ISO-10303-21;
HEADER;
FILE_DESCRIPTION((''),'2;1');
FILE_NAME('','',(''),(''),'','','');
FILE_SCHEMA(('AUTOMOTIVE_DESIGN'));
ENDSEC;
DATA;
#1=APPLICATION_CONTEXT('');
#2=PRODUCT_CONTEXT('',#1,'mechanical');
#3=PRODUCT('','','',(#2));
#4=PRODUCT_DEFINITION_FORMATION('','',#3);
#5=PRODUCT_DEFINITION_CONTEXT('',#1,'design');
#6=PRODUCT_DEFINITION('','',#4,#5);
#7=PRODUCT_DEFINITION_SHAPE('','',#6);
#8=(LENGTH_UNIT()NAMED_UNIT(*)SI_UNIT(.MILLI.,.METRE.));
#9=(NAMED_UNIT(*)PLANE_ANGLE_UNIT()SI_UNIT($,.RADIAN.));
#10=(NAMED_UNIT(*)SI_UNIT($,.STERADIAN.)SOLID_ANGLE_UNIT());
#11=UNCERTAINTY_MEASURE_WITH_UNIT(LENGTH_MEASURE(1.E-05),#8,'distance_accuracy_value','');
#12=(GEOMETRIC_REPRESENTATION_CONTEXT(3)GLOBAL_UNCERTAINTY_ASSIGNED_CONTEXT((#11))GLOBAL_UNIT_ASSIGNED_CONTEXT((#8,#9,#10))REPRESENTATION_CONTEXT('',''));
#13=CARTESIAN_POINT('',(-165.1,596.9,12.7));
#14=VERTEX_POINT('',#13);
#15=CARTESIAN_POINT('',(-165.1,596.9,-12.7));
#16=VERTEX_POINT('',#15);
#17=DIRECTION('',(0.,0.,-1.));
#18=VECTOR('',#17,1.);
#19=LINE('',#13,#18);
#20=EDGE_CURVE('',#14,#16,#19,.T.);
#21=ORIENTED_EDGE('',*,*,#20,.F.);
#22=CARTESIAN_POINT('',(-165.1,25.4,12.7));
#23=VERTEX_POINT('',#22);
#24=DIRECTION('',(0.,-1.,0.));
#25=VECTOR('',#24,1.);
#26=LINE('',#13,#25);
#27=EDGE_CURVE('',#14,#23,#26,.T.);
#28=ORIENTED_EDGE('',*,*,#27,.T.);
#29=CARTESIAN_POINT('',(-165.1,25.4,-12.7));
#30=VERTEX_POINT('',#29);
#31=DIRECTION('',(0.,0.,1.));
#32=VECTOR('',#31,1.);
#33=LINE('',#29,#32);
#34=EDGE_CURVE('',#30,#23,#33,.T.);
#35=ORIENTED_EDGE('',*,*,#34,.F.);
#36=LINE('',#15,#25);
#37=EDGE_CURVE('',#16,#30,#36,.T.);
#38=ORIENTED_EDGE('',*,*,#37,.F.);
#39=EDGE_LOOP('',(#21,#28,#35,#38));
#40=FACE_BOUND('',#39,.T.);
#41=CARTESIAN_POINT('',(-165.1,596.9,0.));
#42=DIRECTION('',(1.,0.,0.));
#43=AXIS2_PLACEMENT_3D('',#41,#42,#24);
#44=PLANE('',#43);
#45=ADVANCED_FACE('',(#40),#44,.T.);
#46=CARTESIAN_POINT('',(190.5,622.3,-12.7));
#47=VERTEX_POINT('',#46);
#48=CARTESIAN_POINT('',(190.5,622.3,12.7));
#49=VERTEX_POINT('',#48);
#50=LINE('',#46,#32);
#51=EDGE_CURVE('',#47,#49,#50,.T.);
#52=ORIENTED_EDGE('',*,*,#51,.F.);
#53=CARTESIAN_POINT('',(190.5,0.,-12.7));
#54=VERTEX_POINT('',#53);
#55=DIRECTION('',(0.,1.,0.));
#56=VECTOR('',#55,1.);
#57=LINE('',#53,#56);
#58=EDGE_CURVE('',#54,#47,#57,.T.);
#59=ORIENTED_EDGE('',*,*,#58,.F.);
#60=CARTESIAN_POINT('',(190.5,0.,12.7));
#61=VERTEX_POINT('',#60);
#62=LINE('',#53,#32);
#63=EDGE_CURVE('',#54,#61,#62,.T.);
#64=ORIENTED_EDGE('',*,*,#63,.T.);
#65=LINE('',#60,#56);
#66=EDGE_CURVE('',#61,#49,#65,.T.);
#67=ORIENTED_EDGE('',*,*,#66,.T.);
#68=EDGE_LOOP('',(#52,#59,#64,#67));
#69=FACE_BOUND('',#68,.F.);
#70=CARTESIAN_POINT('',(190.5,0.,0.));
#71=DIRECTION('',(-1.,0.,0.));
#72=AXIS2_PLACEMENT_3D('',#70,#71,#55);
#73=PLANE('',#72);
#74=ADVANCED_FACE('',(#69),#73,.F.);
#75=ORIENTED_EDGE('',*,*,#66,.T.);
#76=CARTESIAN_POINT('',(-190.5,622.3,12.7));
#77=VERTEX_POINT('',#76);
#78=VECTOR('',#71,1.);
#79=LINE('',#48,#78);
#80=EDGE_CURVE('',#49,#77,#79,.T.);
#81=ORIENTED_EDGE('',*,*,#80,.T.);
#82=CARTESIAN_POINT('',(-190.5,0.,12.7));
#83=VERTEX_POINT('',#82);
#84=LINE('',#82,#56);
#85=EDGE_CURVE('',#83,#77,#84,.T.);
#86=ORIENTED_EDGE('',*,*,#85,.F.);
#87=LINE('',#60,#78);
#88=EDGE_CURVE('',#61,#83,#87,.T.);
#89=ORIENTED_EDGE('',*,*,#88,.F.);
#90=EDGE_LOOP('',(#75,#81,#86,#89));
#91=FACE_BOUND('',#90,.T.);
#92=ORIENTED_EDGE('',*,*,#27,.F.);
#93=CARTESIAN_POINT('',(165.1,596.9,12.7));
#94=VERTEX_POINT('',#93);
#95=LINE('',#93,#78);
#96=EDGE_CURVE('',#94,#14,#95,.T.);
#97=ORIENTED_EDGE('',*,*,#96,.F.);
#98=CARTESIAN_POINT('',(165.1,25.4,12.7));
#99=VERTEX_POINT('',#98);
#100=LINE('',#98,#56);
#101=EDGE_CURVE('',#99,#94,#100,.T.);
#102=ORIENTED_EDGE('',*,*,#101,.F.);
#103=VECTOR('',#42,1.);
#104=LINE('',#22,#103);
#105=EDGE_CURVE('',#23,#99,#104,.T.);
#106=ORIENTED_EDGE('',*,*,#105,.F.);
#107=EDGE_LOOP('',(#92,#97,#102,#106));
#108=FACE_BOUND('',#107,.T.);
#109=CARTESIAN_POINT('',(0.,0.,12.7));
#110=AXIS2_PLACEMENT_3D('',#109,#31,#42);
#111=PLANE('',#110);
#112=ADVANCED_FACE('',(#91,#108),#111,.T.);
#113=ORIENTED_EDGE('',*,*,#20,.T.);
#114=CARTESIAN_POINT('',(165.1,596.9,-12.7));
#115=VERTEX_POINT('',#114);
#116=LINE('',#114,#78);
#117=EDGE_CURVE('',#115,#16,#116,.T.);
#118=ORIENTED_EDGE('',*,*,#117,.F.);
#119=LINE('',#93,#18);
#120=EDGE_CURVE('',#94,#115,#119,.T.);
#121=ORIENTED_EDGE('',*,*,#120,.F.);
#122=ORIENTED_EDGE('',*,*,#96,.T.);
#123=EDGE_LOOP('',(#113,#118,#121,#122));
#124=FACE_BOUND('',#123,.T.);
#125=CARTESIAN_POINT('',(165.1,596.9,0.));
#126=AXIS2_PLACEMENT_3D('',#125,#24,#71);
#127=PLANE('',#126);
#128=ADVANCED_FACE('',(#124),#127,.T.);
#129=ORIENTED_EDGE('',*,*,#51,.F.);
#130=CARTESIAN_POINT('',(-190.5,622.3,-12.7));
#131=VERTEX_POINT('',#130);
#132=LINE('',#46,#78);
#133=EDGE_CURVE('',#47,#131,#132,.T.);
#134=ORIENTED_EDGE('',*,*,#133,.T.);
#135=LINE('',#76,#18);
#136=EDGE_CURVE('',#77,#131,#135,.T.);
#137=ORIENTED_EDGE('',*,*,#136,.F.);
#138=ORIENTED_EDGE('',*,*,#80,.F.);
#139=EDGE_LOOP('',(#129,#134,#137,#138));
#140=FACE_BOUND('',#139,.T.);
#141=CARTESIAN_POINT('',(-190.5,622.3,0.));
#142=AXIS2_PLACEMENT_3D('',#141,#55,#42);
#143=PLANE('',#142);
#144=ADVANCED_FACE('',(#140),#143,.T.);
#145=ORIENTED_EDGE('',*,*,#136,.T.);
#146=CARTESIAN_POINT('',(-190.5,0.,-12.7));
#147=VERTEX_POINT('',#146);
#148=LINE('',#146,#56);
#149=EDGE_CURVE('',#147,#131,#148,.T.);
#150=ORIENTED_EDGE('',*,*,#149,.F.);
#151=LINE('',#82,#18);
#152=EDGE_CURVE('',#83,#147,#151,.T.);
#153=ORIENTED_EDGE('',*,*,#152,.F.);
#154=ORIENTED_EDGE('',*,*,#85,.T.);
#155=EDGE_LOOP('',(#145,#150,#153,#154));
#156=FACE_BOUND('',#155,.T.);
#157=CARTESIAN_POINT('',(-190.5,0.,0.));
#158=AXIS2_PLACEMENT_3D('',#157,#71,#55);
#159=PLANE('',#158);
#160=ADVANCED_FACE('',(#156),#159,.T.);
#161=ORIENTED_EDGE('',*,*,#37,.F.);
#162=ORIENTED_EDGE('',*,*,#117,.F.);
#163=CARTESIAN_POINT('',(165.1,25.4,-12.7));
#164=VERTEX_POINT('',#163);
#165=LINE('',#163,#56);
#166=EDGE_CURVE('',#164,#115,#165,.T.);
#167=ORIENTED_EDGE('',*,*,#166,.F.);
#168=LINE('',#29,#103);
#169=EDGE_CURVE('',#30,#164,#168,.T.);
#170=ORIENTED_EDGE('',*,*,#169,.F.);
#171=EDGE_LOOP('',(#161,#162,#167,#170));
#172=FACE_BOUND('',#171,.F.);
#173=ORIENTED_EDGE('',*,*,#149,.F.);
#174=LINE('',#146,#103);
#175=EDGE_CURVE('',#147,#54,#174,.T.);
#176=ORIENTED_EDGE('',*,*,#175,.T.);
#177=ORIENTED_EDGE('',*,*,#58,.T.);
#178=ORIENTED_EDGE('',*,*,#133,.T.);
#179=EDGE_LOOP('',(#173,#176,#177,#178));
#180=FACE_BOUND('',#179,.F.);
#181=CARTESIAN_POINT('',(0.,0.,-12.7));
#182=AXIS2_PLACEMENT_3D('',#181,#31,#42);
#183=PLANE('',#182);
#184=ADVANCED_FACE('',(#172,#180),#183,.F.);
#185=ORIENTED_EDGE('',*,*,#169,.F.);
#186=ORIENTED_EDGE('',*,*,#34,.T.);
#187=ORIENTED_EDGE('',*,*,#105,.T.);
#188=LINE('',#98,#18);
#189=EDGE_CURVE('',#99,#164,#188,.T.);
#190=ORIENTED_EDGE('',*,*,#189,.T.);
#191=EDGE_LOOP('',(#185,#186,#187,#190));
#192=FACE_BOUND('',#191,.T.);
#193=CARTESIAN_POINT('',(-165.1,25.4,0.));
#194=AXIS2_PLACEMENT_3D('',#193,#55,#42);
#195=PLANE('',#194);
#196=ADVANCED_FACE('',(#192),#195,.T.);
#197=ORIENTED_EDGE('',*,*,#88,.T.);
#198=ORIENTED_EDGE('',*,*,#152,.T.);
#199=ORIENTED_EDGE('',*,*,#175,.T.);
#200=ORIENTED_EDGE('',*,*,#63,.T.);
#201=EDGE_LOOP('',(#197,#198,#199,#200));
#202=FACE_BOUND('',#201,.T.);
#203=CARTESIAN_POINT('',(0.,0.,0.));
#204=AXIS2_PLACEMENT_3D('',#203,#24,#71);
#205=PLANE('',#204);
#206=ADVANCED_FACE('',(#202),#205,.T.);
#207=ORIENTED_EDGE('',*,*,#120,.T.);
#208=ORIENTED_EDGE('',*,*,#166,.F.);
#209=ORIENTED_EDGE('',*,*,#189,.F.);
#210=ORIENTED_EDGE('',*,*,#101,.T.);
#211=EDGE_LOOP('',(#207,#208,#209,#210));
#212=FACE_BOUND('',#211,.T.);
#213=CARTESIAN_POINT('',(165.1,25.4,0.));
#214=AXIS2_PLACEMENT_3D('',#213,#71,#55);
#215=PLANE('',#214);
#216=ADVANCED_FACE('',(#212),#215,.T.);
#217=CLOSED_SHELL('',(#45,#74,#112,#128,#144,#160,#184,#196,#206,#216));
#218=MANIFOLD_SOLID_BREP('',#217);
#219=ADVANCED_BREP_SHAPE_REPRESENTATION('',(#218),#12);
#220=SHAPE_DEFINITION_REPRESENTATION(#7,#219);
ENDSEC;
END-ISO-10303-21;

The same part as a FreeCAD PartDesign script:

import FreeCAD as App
import Part
import Sketcher
from FreeCAD import Vector
Q = App.Units.Quantity

doc = App.newDocument("Part")
body = doc.addObject("PartDesign::Body", "Body")

sketch1 = body.newObject("Sketcher::SketchObject", "Sketch")
sketch1.AttachmentSupport = (doc.getObject("XY_Plane"), [""])
sketch1.MapMode = "FlatFace"
sketch1.addGeometry([
    Part.LineSegment(Vector(-190, 0, 0), Vector(190, 0, 0)),
    Part.LineSegment(Vector(190, 0, 0), Vector(190, 622, 0)),
    Part.LineSegment(Vector(190, 622, 0), Vector(-190, 622, 0)),
    Part.LineSegment(Vector(-190, 622, 0), Vector(-190, 0, 0)),
    Part.LineSegment(Vector(165, 25, 0), Vector(-165, 25, 0)),
    Part.LineSegment(Vector(-165, 25, 0), Vector(-165, 597, 0)),
    Part.LineSegment(Vector(-165, 597, 0), Vector(165, 597, 0)),
    Part.LineSegment(Vector(165, 597, 0), Vector(165, 25, 0)),
], False)
sketch1.addConstraint([
    Sketcher.Constraint("Coincident", 0, 2, 1, 1),
    Sketcher.Constraint("Coincident", 1, 2, 2, 1),
    Sketcher.Constraint("Coincident", 2, 2, 3, 1),
    Sketcher.Constraint("Coincident", 3, 2, 0, 1),
    Sketcher.Constraint("Coincident", 4, 2, 5, 1),
    Sketcher.Constraint("Coincident", 5, 2, 6, 1),
    Sketcher.Constraint("Coincident", 6, 2, 7, 1),
    Sketcher.Constraint("Coincident", 7, 2, 4, 1),
    Sketcher.Constraint("Horizontal", 0),
    Sketcher.Constraint("Vertical", 1),
    Sketcher.Constraint("Horizontal", 2),
    Sketcher.Constraint("Vertical", 3),
    Sketcher.Constraint("Horizontal", 4),
    Sketcher.Constraint("Vertical", 5),
    Sketcher.Constraint("Horizontal", 6),
    Sketcher.Constraint("Vertical", 7),
    Sketcher.Constraint("Symmetric", 0, 2, 3, 2, -1, 1),
    Sketcher.Constraint("DistanceX", 0, 1, 0, 2, Q("15 in")),
    Sketcher.Constraint("DistanceY", 1, 1, 1, 2, Q("24.5 in")),
    Sketcher.Constraint("DistanceY", -1, 1, 4, 2, Q("1 in")),
    Sketcher.Constraint("DistanceX", 3, 2, 4, 2, Q("1 in")),
    Sketcher.Constraint("DistanceY", 5, 2, 2, 2, Q("1 in")),
    Sketcher.Constraint("DistanceX", 6, 2, 1, 2, Q("1 in")),
])
pad1 = body.newObject("PartDesign::Pad", "Pad")
pad1.Profile = sketch1
pad1.Length = Q("1 in")
pad1.Midplane = True

doc.recompute()
